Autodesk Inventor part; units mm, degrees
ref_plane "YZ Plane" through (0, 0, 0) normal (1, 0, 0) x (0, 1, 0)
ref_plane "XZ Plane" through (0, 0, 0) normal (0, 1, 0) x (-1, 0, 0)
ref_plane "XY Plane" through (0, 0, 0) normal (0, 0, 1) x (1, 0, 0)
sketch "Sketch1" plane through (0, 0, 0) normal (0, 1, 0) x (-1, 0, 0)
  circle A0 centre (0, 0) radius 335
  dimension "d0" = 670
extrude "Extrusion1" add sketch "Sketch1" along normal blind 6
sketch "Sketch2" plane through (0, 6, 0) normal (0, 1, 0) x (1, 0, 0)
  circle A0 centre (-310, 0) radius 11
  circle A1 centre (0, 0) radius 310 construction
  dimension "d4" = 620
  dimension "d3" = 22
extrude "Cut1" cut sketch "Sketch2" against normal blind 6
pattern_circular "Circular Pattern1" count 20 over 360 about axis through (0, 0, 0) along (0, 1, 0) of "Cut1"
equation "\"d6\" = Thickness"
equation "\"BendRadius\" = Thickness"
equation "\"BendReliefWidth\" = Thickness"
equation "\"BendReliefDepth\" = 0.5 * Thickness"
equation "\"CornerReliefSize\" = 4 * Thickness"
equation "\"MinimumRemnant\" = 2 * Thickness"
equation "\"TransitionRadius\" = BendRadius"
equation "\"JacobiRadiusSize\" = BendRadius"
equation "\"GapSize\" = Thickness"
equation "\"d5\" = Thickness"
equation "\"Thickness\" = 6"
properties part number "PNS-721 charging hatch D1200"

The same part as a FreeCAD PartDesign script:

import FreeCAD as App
import Part
import Sketcher
Q = App.Units.Quantity

doc = App.newDocument("Part")
params = doc.addObject("Spreadsheet::Sheet", "Params")
for row, (alias, value) in enumerate([
    ("sketch1_diameter", "670 mm"),
    ("pad1_length", "6 mm"),
    ("sketch2_diameter", "22 mm"),
    ("pocket1_length", "6 mm"),
], start=1):
    params.set(f"A{row}", alias)
    params.set(f"B{row}", "=" + value)
    params.setAlias(f"B{row}", alias)

body = doc.addObject("PartDesign::Body", "Body")

sketch1 = doc.addObject("Sketcher::SketchObject", "Sketch")
body.addObject(sketch1)
sketch1.AttachmentSupport = (doc.XZ_Plane, [""])
sketch1.MapMode = "FlatFace"
sketch1.addGeometry(Part.Circle(App.Vector(0, 0, 0), App.Vector(0, 0, 1), 335), False)
sketch1.addConstraint([
    Sketcher.Constraint("Coincident", 0, 3, -1, 1),
    Sketcher.Constraint("Diameter", 0, Q("670 mm")),
])
sketch1.setExpression("Constraints[1]", "Params.sketch1_diameter")
pad1 = doc.addObject("PartDesign::Pad", "Pad")
body.addObject(pad1)
pad1.Profile = sketch1
pad1.setExpression("Length", "Params.pad1_length")
pad1.Reversed = True

sketch2 = doc.addObject("Sketcher::SketchObject", "Sketch001")
body.addObject(sketch2)
sketch2.AttachmentSupport = (doc.XZ_Plane, [""])
sketch2.MapMode = "FlatFace"
sketch2.AttachmentOffset = App.Placement(App.Vector(0, 0, -6), App.Rotation())
sketch2.addGeometry(Part.Circle(App.Vector(-310, 0, 0), App.Vector(0, 0, 1), 11), False)
sketch2.addConstraint([
    Sketcher.Constraint("PointOnObject", 0, 3, -1),
    Sketcher.Constraint("Diameter", 0, Q("22 mm")),
    Sketcher.Constraint("DistanceX", 0, 3, -1, 1, Q("310 mm")),
])
sketch2.setExpression("Constraints[1]", "Params.sketch2_diameter")
pocket1 = doc.addObject("PartDesign::Pocket", "Pocket")
body.addObject(pocket1)
pocket1.Profile = sketch2
pocket1.setExpression("Length", "Params.pocket1_length")
pocket1.Reversed = True
doc.recompute()

polarpattern = doc.addObject("PartDesign::PolarPattern", "PolarPattern")
body.addObject(polarpattern)
polarpattern.Originals = [pocket1]
polarpattern.Axis = (doc.Y_Axis, [""])
polarpattern.Angle = 360
polarpattern.Occurrences = 20
body.Tip = polarpattern

doc.recompute()
